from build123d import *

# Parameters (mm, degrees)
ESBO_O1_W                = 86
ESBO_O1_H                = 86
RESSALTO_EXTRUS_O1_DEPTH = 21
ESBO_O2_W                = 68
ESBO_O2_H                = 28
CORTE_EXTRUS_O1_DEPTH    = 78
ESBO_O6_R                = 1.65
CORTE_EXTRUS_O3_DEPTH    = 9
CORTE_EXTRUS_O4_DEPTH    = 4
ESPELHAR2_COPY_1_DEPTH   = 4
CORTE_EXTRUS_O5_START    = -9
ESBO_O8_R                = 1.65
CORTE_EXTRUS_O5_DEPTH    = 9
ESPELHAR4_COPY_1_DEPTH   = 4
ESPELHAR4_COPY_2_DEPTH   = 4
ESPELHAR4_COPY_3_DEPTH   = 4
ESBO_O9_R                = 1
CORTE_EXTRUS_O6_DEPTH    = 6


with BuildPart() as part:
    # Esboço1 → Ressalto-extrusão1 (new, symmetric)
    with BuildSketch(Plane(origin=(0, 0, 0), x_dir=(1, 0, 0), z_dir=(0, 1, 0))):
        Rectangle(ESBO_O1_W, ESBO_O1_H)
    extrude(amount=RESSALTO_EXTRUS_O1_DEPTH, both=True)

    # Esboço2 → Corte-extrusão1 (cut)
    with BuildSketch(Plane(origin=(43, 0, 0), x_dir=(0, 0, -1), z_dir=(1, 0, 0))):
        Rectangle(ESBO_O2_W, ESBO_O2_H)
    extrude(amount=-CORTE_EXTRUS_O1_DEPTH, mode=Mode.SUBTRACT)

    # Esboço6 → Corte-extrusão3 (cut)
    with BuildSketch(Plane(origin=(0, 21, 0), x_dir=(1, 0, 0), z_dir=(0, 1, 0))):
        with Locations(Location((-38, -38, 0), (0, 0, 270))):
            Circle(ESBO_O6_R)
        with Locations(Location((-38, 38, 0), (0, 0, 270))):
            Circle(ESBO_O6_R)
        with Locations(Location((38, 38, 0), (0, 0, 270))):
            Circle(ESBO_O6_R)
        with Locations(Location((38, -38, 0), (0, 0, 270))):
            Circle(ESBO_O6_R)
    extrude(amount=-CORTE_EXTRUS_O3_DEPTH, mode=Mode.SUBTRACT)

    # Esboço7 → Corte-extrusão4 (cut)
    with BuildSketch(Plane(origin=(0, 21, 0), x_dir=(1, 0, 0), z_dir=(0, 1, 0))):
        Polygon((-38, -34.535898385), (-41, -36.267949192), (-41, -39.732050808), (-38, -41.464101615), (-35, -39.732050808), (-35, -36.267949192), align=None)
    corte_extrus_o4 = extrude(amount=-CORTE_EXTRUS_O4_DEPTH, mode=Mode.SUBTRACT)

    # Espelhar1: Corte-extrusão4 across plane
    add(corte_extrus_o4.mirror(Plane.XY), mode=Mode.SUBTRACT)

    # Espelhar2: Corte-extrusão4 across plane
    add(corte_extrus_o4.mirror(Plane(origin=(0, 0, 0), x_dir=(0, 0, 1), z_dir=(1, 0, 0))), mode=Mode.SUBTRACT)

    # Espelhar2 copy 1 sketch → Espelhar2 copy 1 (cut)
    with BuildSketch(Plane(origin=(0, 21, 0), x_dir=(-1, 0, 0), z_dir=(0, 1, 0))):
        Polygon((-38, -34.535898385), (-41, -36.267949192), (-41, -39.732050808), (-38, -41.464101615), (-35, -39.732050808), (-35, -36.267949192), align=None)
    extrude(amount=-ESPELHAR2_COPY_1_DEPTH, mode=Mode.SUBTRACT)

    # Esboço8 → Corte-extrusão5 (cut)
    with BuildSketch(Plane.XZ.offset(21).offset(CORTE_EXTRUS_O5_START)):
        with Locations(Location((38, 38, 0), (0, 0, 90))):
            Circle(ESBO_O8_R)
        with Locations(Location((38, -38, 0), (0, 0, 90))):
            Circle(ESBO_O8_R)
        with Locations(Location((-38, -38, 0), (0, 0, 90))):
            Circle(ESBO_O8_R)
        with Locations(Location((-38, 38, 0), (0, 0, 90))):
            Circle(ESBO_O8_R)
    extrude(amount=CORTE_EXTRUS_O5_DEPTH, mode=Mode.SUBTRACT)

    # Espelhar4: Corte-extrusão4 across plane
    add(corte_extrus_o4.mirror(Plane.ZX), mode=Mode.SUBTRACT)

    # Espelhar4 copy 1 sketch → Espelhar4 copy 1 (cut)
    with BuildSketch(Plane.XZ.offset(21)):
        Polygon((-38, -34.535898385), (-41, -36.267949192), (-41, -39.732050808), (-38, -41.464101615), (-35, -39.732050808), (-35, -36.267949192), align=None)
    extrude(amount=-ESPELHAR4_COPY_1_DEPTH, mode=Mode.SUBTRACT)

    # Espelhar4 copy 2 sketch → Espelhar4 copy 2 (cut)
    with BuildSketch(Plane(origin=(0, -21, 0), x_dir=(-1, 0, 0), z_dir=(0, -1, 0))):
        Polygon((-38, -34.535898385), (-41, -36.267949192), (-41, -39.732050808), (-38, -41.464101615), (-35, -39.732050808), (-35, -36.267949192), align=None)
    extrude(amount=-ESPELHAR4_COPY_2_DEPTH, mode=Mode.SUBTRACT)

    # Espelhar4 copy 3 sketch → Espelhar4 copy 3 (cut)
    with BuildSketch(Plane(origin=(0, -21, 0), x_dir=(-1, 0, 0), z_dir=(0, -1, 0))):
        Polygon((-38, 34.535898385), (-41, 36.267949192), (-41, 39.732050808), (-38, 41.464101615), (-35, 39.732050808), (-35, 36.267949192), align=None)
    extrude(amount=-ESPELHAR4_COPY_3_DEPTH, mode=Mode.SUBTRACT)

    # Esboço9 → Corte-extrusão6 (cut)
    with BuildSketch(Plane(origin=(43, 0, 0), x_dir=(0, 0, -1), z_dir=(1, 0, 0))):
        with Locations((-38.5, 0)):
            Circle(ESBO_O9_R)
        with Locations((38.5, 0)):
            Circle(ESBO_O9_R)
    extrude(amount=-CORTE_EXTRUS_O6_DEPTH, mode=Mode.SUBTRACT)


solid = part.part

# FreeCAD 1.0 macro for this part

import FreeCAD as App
import Part
import Sketcher
from FreeCAD import Vector
Q = App.Units.Quantity

doc = App.newDocument("Part")
body = doc.addObject("PartDesign::Body", "Body")

# Sketch on XZ plane
sketch1 = doc.addObject("Sketcher::SketchObject", "Sketch")
body.addObject(sketch1)
sketch1.AttachmentSupport = (doc.XZ_Plane, [""])
sketch1.MapMode = "FlatFace"
sketch1.addGeometry(Part.LineSegment(Vector(-43, -43, 0), Vector(-43, 43, 0)), False)
sketch1.addGeometry(Part.LineSegment(Vector(-43, 43, 0), Vector(43, 43, 0)), False)
sketch1.addGeometry(Part.LineSegment(Vector(43, 43, 0), Vector(43, -43, 0)), False)
sketch1.addGeometry(Part.LineSegment(Vector(43, -43, 0), Vector(-43, -43, 0)), False)
sketch1.addConstraint(Sketcher.Constraint("Coincident", 0, 2, 1, 1))
sketch1.addConstraint(Sketcher.Constraint("Coincident", 1, 2, 2, 1))
sketch1.addConstraint(Sketcher.Constraint("Coincident", 2, 2, 3, 1))
sketch1.addConstraint(Sketcher.Constraint("Coincident", 3, 2, 0, 1))
sketch1.addConstraint(Sketcher.Constraint("Vertical", 0))
sketch1.addConstraint(Sketcher.Constraint("Horizontal", 1))
sketch1.addConstraint(Sketcher.Constraint("Vertical", 2))
sketch1.addConstraint(Sketcher.Constraint("Horizontal", 3))
sketch1.addConstraint(Sketcher.Constraint("Symmetric", 0, 2, 2, 2, -1, 1))
sketch1.addConstraint(Sketcher.Constraint("Equal", 3, 0))
sketch1.addConstraint(Sketcher.Constraint("DistanceX", 1, 1, 1, 2, Q("86 mm")))
pad1 = doc.addObject("PartDesign::Pad", "Pad")
body.addObject(pad1)
pad1.Profile = sketch1
pad1.Length = 42
pad1.Midplane = True

# Sketch on YZ plane
sketch2 = doc.addObject("Sketcher::SketchObject", "Sketch001")
body.addObject(sketch2)
sketch2.AttachmentSupport = (doc.YZ_Plane, [""])
sketch2.MapMode = "FlatFace"
sketch2.AttachmentOffset = App.Placement(Vector(0, 0, 43), App.Rotation())
sketch2.addGeometry(Part.LineSegment(Vector(14, 34, 0), Vector(-14, 34, 0)), False)
sketch2.addGeometry(Part.LineSegment(Vector(-14, 34, 0), Vector(-14, -34, 0)), False)
sketch2.addGeometry(Part.LineSegment(Vector(-14, -34, 0), Vector(14, -34, 0)), False)
sketch2.addGeometry(Part.LineSegment(Vector(14, -34, 0), Vector(14, 34, 0)), False)
sketch2.addConstraint(Sketcher.Constraint("Coincident", 0, 2, 1, 1))
sketch2.addConstraint(Sketcher.Constraint("Coincident", 1, 2, 2, 1))
sketch2.addConstraint(Sketcher.Constraint("Coincident", 2, 2, 3, 1))
sketch2.addConstraint(Sketcher.Constraint("Coincident", 3, 2, 0, 1))
sketch2.addConstraint(Sketcher.Constraint("Horizontal", 0))
sketch2.addConstraint(Sketcher.Constraint("Vertical", 1))
sketch2.addConstraint(Sketcher.Constraint("Horizontal", 2))
sketch2.addConstraint(Sketcher.Constraint("Vertical", 3))
sketch2.addConstraint(Sketcher.Constraint("Symmetric", 0, 2, 2, 2, -1, 1))
sketch2.addConstraint(Sketcher.Constraint("DistanceX", 0, 2, 0, 1, Q("28 mm")))
sketch2.addConstraint(Sketcher.Constraint("DistanceY", 1, 2, 1, 1, Q("68 mm")))
pocket1 = doc.addObject("PartDesign::Pocket", "Pocket")
body.addObject(pocket1)
pocket1.Profile = sketch2
pocket1.Length = 78

# Sketch on XZ plane
sketch3 = doc.addObject("Sketcher::SketchObject", "Sketch002")
body.addObject(sketch3)
sketch3.AttachmentSupport = (doc.XZ_Plane, [""])
sketch3.MapMode = "FlatFace"
sketch3.AttachmentOffset = App.Placement(Vector(0, 0, -21), App.Rotation())
sketch3.addGeometry(Part.Circle(Vector(-38, 38, 0), Vector(0, 0, 1), 1.6), False)
sketch3.addGeometry(Part.Circle(Vector(-38, -38, 0), Vector(0, 0, 1), 1.6), False)
sketch3.addGeometry(Part.Circle(Vector(38, -38, 0), Vector(0, 0, 1), 1.6), False)
sketch3.addGeometry(Part.Circle(Vector(38, 38, 0), Vector(0, 0, 1), 1.6), False)
sketch3.addConstraint(Sketcher.Constraint("Equal", 0, 1))
sketch3.addConstraint(Sketcher.Constraint("Equal", 1, 2))
sketch3.addConstraint(Sketcher.Constraint("Equal", 2, 3))
sketch3.addConstraint(Sketcher.Constraint("Symmetric", 0, 3, 2, 3, -1, 1))
sketch3.addConstraint(Sketcher.Constraint("Symmetric", 1, 3, 3, 3, -1, 1))
sketch3.addConstraint(Sketcher.Constraint("Symmetric", 1, 3, 2, 3, -2))
sketch3.addConstraint(Sketcher.Constraint("Diameter", 0, Q("3.3 mm")))
sketch3.addConstraint(Sketcher.Constraint("DistanceX", 0, 3, -1, 1, Q("38 mm")))
sketch3.addConstraint(Sketcher.Constraint("DistanceY", -1, 1, 0, 3, Q("38 mm")))
pocket2 = doc.addObject("PartDesign::Pocket", "Pocket001")
body.addObject(pocket2)
pocket2.Profile = sketch3
pocket2.Length = 9
pocket2.Reversed = True

# Sketch on XZ plane
sketch4 = doc.addObject("Sketcher::SketchObject", "Sketch003")
body.addObject(sketch4)
sketch4.AttachmentSupport = (doc.XZ_Plane, [""])
sketch4.MapMode = "FlatFace"
sketch4.AttachmentOffset = App.Placement(Vector(0, 0, -21), App.Rotation())
sketch4.addGeometry(Part.LineSegment(Vector(-38, 34.5, 0), Vector(-41, 36.3, 0)), False)
sketch4.addGeometry(Part.LineSegment(Vector(-41, 36.3, 0), Vector(-41, 39.7, 0)), False)
sketch4.addGeometry(Part.LineSegment(Vector(-41, 39.7, 0), Vector(-38, 41.5, 0)), False)
sketch4.addGeometry(Part.LineSegment(Vector(-38, 41.5, 0), Vector(-35, 39.7, 0)), False)
sketch4.addGeometry(Part.LineSegment(Vector(-35, 39.7, 0), Vector(-35, 36.3, 0)), False)
sketch4.addGeometry(Part.LineSegment(Vector(-35, 36.3, 0), Vector(-38, 34.5, 0)), False)
sketch4.addConstraint(Sketcher.Constraint("Coincident", 0, 2, 1, 1))
sketch4.addConstraint(Sketcher.Constraint("Coincident", 1, 2, 2, 1))
sketch4.addConstraint(Sketcher.Constraint("Coincident", 2, 2, 3, 1))
sketch4.addConstraint(Sketcher.Constraint("Coincident", 3, 2, 4, 1))
sketch4.addConstraint(Sketcher.Constraint("Coincident", 4, 2, 5, 1))
sketch4.addConstraint(Sketcher.Constraint("Coincident", 5, 2, 0, 1))
sketch4.addConstraint(Sketcher.Constraint("Vertical", 1))
sketch4.addConstraint(Sketcher.Constraint("Vertical", 4))
sketch4.addConstraint(Sketcher.Constraint("Parallel", 0, 3))
sketch4.addConstraint(Sketcher.Constraint("Parallel", 2, 5))
sketch4.addConstraint(Sketcher.Constraint("Horizontal", 1, 2, 3, 2))
sketch4.addConstraint(Sketcher.Constraint("Horizontal", 0, 2, 4, 2))
sketch4.addConstraint(Sketcher.Constraint("Vertical", 2, 2, 5, 2))
sketch4.addConstraint(Sketcher.Constraint("Angle", 0, Q("150 deg")))
sketch4.addConstraint(Sketcher.Constraint("DistanceX", 0, 2, -1, 1, Q("41 mm")))
sketch4.addConstraint(Sketcher.Constraint("DistanceX", 2, 2, -1, 1, Q("38 mm")))
sketch4.addConstraint(Sketcher.Constraint("DistanceY", 1, 1, 1, 2, Q("3.464102 mm")))
sketch4.addConstraint(Sketcher.Constraint("DistanceY", -1, 1, 2, 2, Q("41.464102 mm")))
pocket3 = doc.addObject("PartDesign::Pocket", "Pocket002")
body.addObject(pocket3)
pocket3.Profile = sketch4
pocket3.Length = 4
pocket3.Reversed = True
doc.recompute()

mirrored = doc.addObject("PartDesign::Mirrored", "Mirrored")
body.addObject(mirrored)
mirrored.Originals = [pocket3]
mirrored.MirrorPlane = (doc.XY_Plane, [""])
body.Tip = mirrored
doc.recompute()

mirrored2 = doc.addObject("PartDesign::Mirrored", "Mirrored001")
body.addObject(mirrored2)
mirrored2.Originals = [pocket3]
mirrored2.MirrorPlane = (doc.YZ_Plane, [""])
body.Tip = mirrored2

# Sketch on XZ plane
sketch5 = doc.addObject("Sketcher::SketchObject", "Sketch004")
body.addObject(sketch5)
sketch5.AttachmentSupport = (doc.XZ_Plane, [""])
sketch5.MapMode = "FlatFace"
sketch5.AttachmentOffset = App.Placement(Vector(0, 0, -21), App.Rotation())
sketch5.addGeometry(Part.LineSegment(Vector(38, -34.5, 0), Vector(41, -36.3, 0)), False)
sketch5.addGeometry(Part.LineSegment(Vector(41, -36.3, 0), Vector(41, -39.7, 0)), False)
sketch5.addGeometry(Part.LineSegment(Vector(41, -39.7, 0), Vector(38, -41.5, 0)), False)
sketch5.addGeometry(Part.LineSegment(Vector(38, -41.5, 0), Vector(35, -39.7, 0)), False)
sketch5.addGeometry(Part.LineSegment(Vector(35, -39.7, 0), Vector(35, -36.3, 0)), False)
sketch5.addGeometry(Part.LineSegment(Vector(35, -36.3, 0), Vector(38, -34.5, 0)), False)
sketch5.addConstraint(Sketcher.Constraint("Coincident", 0, 2, 1, 1))
sketch5.addConstraint(Sketcher.Constraint("Coincident", 1, 2, 2, 1))
sketch5.addConstraint(Sketcher.Constraint("Coincident", 2, 2, 3, 1))
sketch5.addConstraint(Sketcher.Constraint("Coincident", 3, 2, 4, 1))
sketch5.addConstraint(Sketcher.Constraint("Coincident", 4, 2, 5, 1))
sketch5.addConstraint(Sketcher.Constraint("Coincident", 5, 2, 0, 1))
sketch5.addConstraint(Sketcher.Constraint("Vertical", 1))
sketch5.addConstraint(Sketcher.Constraint("Vertical", 4))
sketch5.addConstraint(Sketcher.Constraint("Parallel", 0, 3))
sketch5.addConstraint(Sketcher.Constraint("Parallel", 2, 5))
sketch5.addConstraint(Sketcher.Constraint("Horizontal", 1, 2, 3, 2))
sketch5.addConstraint(Sketcher.Constraint("Horizontal", 0, 2, 4, 2))
sketch5.addConstraint(Sketcher.Constraint("Vertical", 2, 2, 5, 2))
sketch5.addConstraint(Sketcher.Constraint("Angle", 0, Q("-30 deg")))
sketch5.addConstraint(Sketcher.Constraint("DistanceX", -1, 1, 0, 2, Q("41 mm")))
sketch5.addConstraint(Sketcher.Constraint("DistanceX", -1, 1, 2, 2, Q("38 mm")))
sketch5.addConstraint(Sketcher.Constraint("DistanceY", 1, 2, 1, 1, Q("3.464102 mm")))
sketch5.addConstraint(Sketcher.Constraint("DistanceY", 2, 2, -1, 1, Q("41.464102 mm")))
pocket4 = doc.addObject("PartDesign::Pocket", "Pocket003")
body.addObject(pocket4)
pocket4.Profile = sketch5
pocket4.Length = 4
pocket4.Reversed = True

# Sketch on XZ plane
sketch6 = doc.addObject("Sketcher::SketchObject", "Sketch005")
body.addObject(sketch6)
sketch6.AttachmentSupport = (doc.XZ_Plane, [""])
sketch6.MapMode = "FlatFace"
sketch6.AttachmentOffset = App.Placement(Vector(0, 0, 12), App.Rotation())
sketch6.addGeometry(Part.Circle(Vector(38, 38, 0), Vector(0, 0, 1), 1.6), False)
sketch6.addGeometry(Part.Circle(Vector(38, -38, 0), Vector(0, 0, 1), 1.6), False)
sketch6.addGeometry(Part.Circle(Vector(-38, -38, 0), Vector(0, 0, 1), 1.6), False)
sketch6.addGeometry(Part.Circle(Vector(-38, 38, 0), Vector(0, 0, 1), 1.6), False)
sketch6.addConstraint(Sketcher.Constraint("Equal", 0, 1))
sketch6.addConstraint(Sketcher.Constraint("Equal", 1, 2))
sketch6.addConstraint(Sketcher.Constraint("Equal", 2, 3))
sketch6.addConstraint(Sketcher.Constraint("Symmetric", 0, 3, 2, 3, -1, 1))
sketch6.addConstraint(Sketcher.Constraint("Symmetric", 1, 3, 3, 3, -1, 1))
sketch6.addConstraint(Sketcher.Constraint("Symmetric", 1, 3, 2, 3, -2))
sketch6.addConstraint(Sketcher.Constraint("Diameter", 0, Q("3.3 mm")))
sketch6.addConstraint(Sketcher.Constraint("DistanceX", -1, 1, 0, 3, Q("38 mm")))
sketch6.addConstraint(Sketcher.Constraint("DistanceY", -1, 1, 0, 3, Q("38 mm")))
pocket5 = doc.addObject("PartDesign::Pocket", "Pocket004")
body.addObject(pocket5)
pocket5.Profile = sketch6
pocket5.Length = 9
pocket5.Reversed = True
doc.recompute()

mirrored3 = doc.addObject("PartDesign::Mirrored", "Mirrored002")
body.addObject(mirrored3)
mirrored3.Originals = [pocket3]
mirrored3.MirrorPlane = (doc.XZ_Plane, [""])
body.Tip = mirrored3

# Sketch on XZ plane
sketch7 = doc.addObject("Sketcher::SketchObject", "Sketch006")
body.addObject(sketch7)
sketch7.AttachmentSupport = (doc.XZ_Plane, [""])
sketch7.MapMode = "FlatFace"
sketch7.AttachmentOffset = App.Placement(Vector(0, 0, 21), App.Rotation())
sketch7.addGeometry(Part.LineSegment(Vector(-38, -34.5, 0), Vector(-41, -36.3, 0)), False)
sketch7.addGeometry(Part.LineSegment(Vector(-41, -36.3, 0), Vector(-41, -39.7, 0)), False)
sketch7.addGeometry(Part.LineSegment(Vector(-41, -39.7, 0), Vector(-38, -41.5, 0)), False)
sketch7.addGeometry(Part.LineSegment(Vector(-38, -41.5, 0), Vector(-35, -39.7, 0)), False)
sketch7.addGeometry(Part.LineSegment(Vector(-35, -39.7, 0), Vector(-35, -36.3, 0)), False)
sketch7.addGeometry(Part.LineSegment(Vector(-35, -36.3, 0), Vector(-38, -34.5, 0)), False)
sketch7.addConstraint(Sketcher.Constraint("Coincident", 0, 2, 1, 1))
sketch7.addConstraint(Sketcher.Constraint("Coincident", 1, 2, 2, 1))
sketch7.addConstraint(Sketcher.Constraint("Coincident", 2, 2, 3, 1))
sketch7.addConstraint(Sketcher.Constraint("Coincident", 3, 2, 4, 1))
sketch7.addConstraint(Sketcher.Constraint("Coincident", 4, 2, 5, 1))
sketch7.addConstraint(Sketcher.Constraint("Coincident", 5, 2, 0, 1))
sketch7.addConstraint(Sketcher.Constraint("Vertical", 1))
sketch7.addConstraint(Sketcher.Constraint("Vertical", 4))
sketch7.addConstraint(Sketcher.Constraint("Parallel", 0, 3))
sketch7.addConstraint(Sketcher.Constraint("Parallel", 2, 5))
sketch7.addConstraint(Sketcher.Constraint("Horizontal", 1, 2, 3, 2))
sketch7.addConstraint(Sketcher.Constraint("Horizontal", 0, 2, 4, 2))
sketch7.addConstraint(Sketcher.Constraint("Vertical", 2, 2, 5, 2))
sketch7.addConstraint(Sketcher.Constraint("Angle", 0, Q("-150 deg")))
sketch7.addConstraint(Sketcher.Constraint("DistanceX", 0, 2, -1, 1, Q("41 mm")))
sketch7.addConstraint(Sketcher.Constraint("DistanceX", 2, 2, -1, 1, Q("38 mm")))
sketch7.addConstraint(Sketcher.Constraint("DistanceY", 1, 2, 1, 1, Q("3.464102 mm")))
sketch7.addConstraint(Sketcher.Constraint("DistanceY", 2, 2, -1, 1, Q("41.464102 mm")))
pocket6 = doc.addObject("PartDesign::Pocket", "Pocket005")
body.addObject(pocket6)
pocket6.Profile = sketch7
pocket6.Length = 4

# Sketch on XZ plane
sketch8 = doc.addObject("Sketcher::SketchObject", "Sketch007")
body.addObject(sketch8)
sketch8.AttachmentSupport = (doc.XZ_Plane, [""])
sketch8.MapMode = "FlatFace"
sketch8.AttachmentOffset = App.Placement(Vector(0, 0, 21), App.Rotation())
sketch8.addGeometry(Part.LineSegment(Vector(38, 34.5, 0), Vector(41, 36.3, 0)), False)
sketch8.addGeometry(Part.LineSegment(Vector(41, 36.3, 0), Vector(41, 39.7, 0)), False)
sketch8.addGeometry(Part.LineSegment(Vector(41, 39.7, 0), Vector(38, 41.5, 0)), False)
sketch8.addGeometry(Part.LineSegment(Vector(38, 41.5, 0), Vector(35, 39.7, 0)), False)
sketch8.addGeometry(Part.LineSegment(Vector(35, 39.7, 0), Vector(35, 36.3, 0)), False)
sketch8.addGeometry(Part.LineSegment(Vector(35, 36.3, 0), Vector(38, 34.5, 0)), False)
sketch8.addConstraint(Sketcher.Constraint("Coincident", 0, 2, 1, 1))
sketch8.addConstraint(Sketcher.Constraint("Coincident", 1, 2, 2, 1))
sketch8.addConstraint(Sketcher.Constraint("Coincident", 2, 2, 3, 1))
sketch8.addConstraint(Sketcher.Constraint("Coincident", 3, 2, 4, 1))
sketch8.addConstraint(Sketcher.Constraint("Coincident", 4, 2, 5, 1))
sketch8.addConstraint(Sketcher.Constraint("Coincident", 5, 2, 0, 1))
sketch8.addConstraint(Sketcher.Constraint("Vertical", 1))
sketch8.addConstraint(Sketcher.Constraint("Vertical", 4))
sketch8.addConstraint(Sketcher.Constraint("Parallel", 0, 3))
sketch8.addConstraint(Sketcher.Constraint("Parallel", 2, 5))
sketch8.addConstraint(Sketcher.Constraint("Horizontal", 1, 2, 3, 2))
sketch8.addConstraint(Sketcher.Constraint("Horizontal", 0, 2, 4, 2))
sketch8.addConstraint(Sketcher.Constraint("Vertical", 2, 2, 5, 2))
sketch8.addConstraint(Sketcher.Constraint("Angle", 0, Q("30 deg")))
sketch8.addConstraint(Sketcher.Constraint("DistanceX", -1, 1, 0, 2, Q("41 mm")))
sketch8.addConstraint(Sketcher.Constraint("DistanceX", -1, 1, 2, 2, Q("38 mm")))
sketch8.addConstraint(Sketcher.Constraint("DistanceY", 1, 1, 1, 2, Q("3.464102 mm")))
sketch8.addConstraint(Sketcher.Constraint("DistanceY", -1, 1, 2, 2, Q("41.464102 mm")))
pocket7 = doc.addObject("PartDesign::Pocket", "Pocket006")
body.addObject(pocket7)
pocket7.Profile = sketch8
pocket7.Length = 4

# Sketch on XZ plane
sketch9 = doc.addObject("Sketcher::SketchObject", "Sketch008")
body.addObject(sketch9)
sketch9.AttachmentSupport = (doc.XZ_Plane, [""])
sketch9.MapMode = "FlatFace"
sketch9.AttachmentOffset = App.Placement(Vector(0, 0, 21), App.Rotation())
sketch9.addGeometry(Part.LineSegment(Vector(41, -36.3, 0), Vector(38, -34.5, 0)), False)
sketch9.addGeometry(Part.LineSegment(Vector(38, -34.5, 0), Vector(35, -36.3, 0)), False)
sketch9.addGeometry(Part.LineSegment(Vector(35, -36.3, 0), Vector(35, -39.7, 0)), False)
sketch9.addGeometry(Part.LineSegment(Vector(35, -39.7, 0), Vector(38, -41.5, 0)), False)
sketch9.addGeometry(Part.LineSegment(Vector(38, -41.5, 0), Vector(41, -39.7, 0)), False)
sketch9.addGeometry(Part.LineSegment(Vector(41, -39.7, 0), Vector(41, -36.3, 0)), False)
sketch9.addConstraint(Sketcher.Constraint("Coincident", 0, 2, 1, 1))
sketch9.addConstraint(Sketcher.Constraint("Coincident", 1, 2, 2, 1))
sketch9.addConstraint(Sketcher.Constraint("Coincident", 2, 2, 3, 1))
sketch9.addConstraint(Sketcher.Constraint("Coincident", 3, 2, 4, 1))
sketch9.addConstraint(Sketcher.Constraint("Coincident", 4, 2, 5, 1))
sketch9.addConstraint(Sketcher.Constraint("Coincident", 5, 2, 0, 1))
sketch9.addConstraint(Sketcher.Constraint("Vertical", 2))
sketch9.addConstraint(Sketcher.Constraint("Vertical", 5))
sketch9.addConstraint(Sketcher.Constraint("Parallel", 0, 3))
sketch9.addConstraint(Sketcher.Constraint("Parallel", 1, 4))
sketch9.addConstraint(Sketcher.Constraint("Horizontal", 2, 2, 4, 2))
sketch9.addConstraint(Sketcher.Constraint("Horizontal", 1, 2, 5, 2))
sketch9.addConstraint(Sketcher.Constraint("Vertical", 0, 2, 3, 2))
sketch9.addConstraint(Sketcher.Constraint("Angle", 0, Q("150 deg")))
sketch9.addConstraint(Sketcher.Constraint("DistanceX", -1, 1, 0, 2, Q("38 mm")))
sketch9.addConstraint(Sketcher.Constraint("DistanceX", -1, 1, 1, 2, Q("35 mm")))
sketch9.addConstraint(Sketcher.Constraint("DistanceY", 2, 2, 2, 1, Q("3.464102 mm")))
sketch9.addConstraint(Sketcher.Constraint("DistanceY", 0, 2, -1, 1, Q("34.535898 mm")))
pocket8 = doc.addObject("PartDesign::Pocket", "Pocket007")
body.addObject(pocket8)
pocket8.Profile = sketch9
pocket8.Length = 4

# Sketch on YZ plane
sketch10 = doc.addObject("Sketcher::SketchObject", "Sketch009")
body.addObject(sketch10)
sketch10.AttachmentSupport = (doc.YZ_Plane, [""])
sketch10.MapMode = "FlatFace"
sketch10.AttachmentOffset = App.Placement(Vector(0, 0, 43), App.Rotation())
sketch10.addGeometry(Part.Circle(Vector(0, 38.5, 0), Vector(0, 0, 1), 1), False)
sketch10.addGeometry(Part.Circle(Vector(0, -38.5, 0), Vector(0, 0, 1), 1), False)
sketch10.addConstraint(Sketcher.Constraint("Equal", 0, 1))
sketch10.addConstraint(Sketcher.Constraint("Symmetric", 0, 3, 1, 3, -1, 1))
sketch10.addConstraint(Sketcher.Constraint("PointOnObject", 0, 3, -2))
sketch10.addConstraint(Sketcher.Constraint("Diameter", 0, Q("2 mm")))
sketch10.addConstraint(Sketcher.Constraint("DistanceY", 1, 3, 0, 3, Q("77 mm")))
pocket9 = doc.addObject("PartDesign::Pocket", "Pocket008")
body.addObject(pocket9)
pocket9.Profile = sketch10
pocket9.Length = 6

doc.recompute()
